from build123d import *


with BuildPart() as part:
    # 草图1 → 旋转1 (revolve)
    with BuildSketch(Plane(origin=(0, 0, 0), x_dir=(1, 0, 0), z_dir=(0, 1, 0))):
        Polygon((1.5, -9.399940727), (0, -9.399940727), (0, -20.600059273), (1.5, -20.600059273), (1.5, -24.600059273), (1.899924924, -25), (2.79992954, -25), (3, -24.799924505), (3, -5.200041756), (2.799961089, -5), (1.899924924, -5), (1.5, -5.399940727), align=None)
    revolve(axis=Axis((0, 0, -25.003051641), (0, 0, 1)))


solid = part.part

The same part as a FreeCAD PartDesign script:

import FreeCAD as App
import Part
import Sketcher

V = App.Vector

doc = App.newDocument("Part")
params = doc.addObject("Spreadsheet::Sheet", "Params")
for row, (alias, value) in enumerate([
    ("sketch1_height", "4 mm"),
    ("sketch1_width", "1.5 mm"),
    ("revolution_angle", "360 deg"),
], start=1):
    params.set(f"A{row}", alias)
    params.set(f"B{row}", "=" + value)
    params.setAlias(f"B{row}", alias)

body = doc.addObject("PartDesign::Body", "Body")

# Sketch on XZ plane
sketch1 = body.newObject("Sketcher::SketchObject", "Sketch")
sketch1.AttachmentSupport = (doc.getObject("XZ_Plane"), [""])
sketch1.MapMode = "FlatFace"
sketch1.addGeometry(Part.LineSegment(V(1.5, 9.4, 0), V(0, 9.4, 0)), False)
sketch1.addGeometry(Part.LineSegment(V(0, 9.4, 0), V(0, 20.6, 0)), False)
sketch1.addGeometry(Part.LineSegment(V(0, 20.6, 0), V(1.5, 20.6, 0)), False)
sketch1.addGeometry(Part.LineSegment(V(1.5, 20.6, 0), V(1.5, 24.6, 0)), False)
sketch1.addGeometry(Part.LineSegment(V(1.5, 24.6, 0), V(1.9, 25, 0)), False)
sketch1.addGeometry(Part.LineSegment(V(1.9, 25, 0), V(2.8, 25, 0)), False)
sketch1.addGeometry(Part.LineSegment(V(2.8, 25, 0), V(3, 24.8, 0)), False)
sketch1.addGeometry(Part.LineSegment(V(3, 24.8, 0), V(3, 5.2, 0)), False)
sketch1.addGeometry(Part.LineSegment(V(3, 5.2, 0), V(2.8, 5, 0)), False)
sketch1.addGeometry(Part.LineSegment(V(2.8, 5, 0), V(1.9, 5, 0)), False)
sketch1.addGeometry(Part.LineSegment(V(1.9, 5, 0), V(1.5, 5.4, 0)), False)
sketch1.addGeometry(Part.LineSegment(V(1.5, 5.4, 0), V(1.5, 9.4, 0)), False)
sketch1.addConstraint(Sketcher.Constraint("Coincident", 0, 2, 1, 1))
sketch1.addConstraint(Sketcher.Constraint("Coincident", 1, 2, 2, 1))
sketch1.addConstraint(Sketcher.Constraint("Coincident", 2, 2, 3, 1))
sketch1.addConstraint(Sketcher.Constraint("Coincident", 3, 2, 4, 1))
sketch1.addConstraint(Sketcher.Constraint("Coincident", 4, 2, 5, 1))
sketch1.addConstraint(Sketcher.Constraint("Coincident", 5, 2, 6, 1))
sketch1.addConstraint(Sketcher.Constraint("Coincident", 6, 2, 7, 1))
sketch1.addConstraint(Sketcher.Constraint("Coincident", 7, 2, 8, 1))
sketch1.addConstraint(Sketcher.Constraint("Coincident", 8, 2, 9, 1))
sketch1.addConstraint(Sketcher.Constraint("Coincident", 9, 2, 10, 1))
sketch1.addConstraint(Sketcher.Constraint("Coincident", 10, 2, 11, 1))
sketch1.addConstraint(Sketcher.Constraint("Coincident", 11, 2, 0, 1))
sketch1.addConstraint(Sketcher.Constraint("Horizontal", 0))
sketch1.addConstraint(Sketcher.Constraint("Vertical", 1))
sketch1.addConstraint(Sketcher.Constraint("Horizontal", 2))
sketch1.addConstraint(Sketcher.Constraint("Vertical", 3))
sketch1.addConstraint(Sketcher.Constraint("Horizontal", 5))
sketch1.addConstraint(Sketcher.Constraint("Vertical", 7))
sketch1.addConstraint(Sketcher.Constraint("Horizontal", 9))
sketch1.addConstraint(Sketcher.Constraint("Vertical", 11))
sketch1.addConstraint(Sketcher.Constraint("PointOnObject", 0, 2, -2))
sketch1.addConstraint(Sketcher.Constraint("Vertical", 4, 2, 9, 2))
sketch1.addConstraint(Sketcher.Constraint("Vertical", 3, 2, 10, 2))
sketch1.addConstraint(Sketcher.Constraint("Equal", 3, 11))
sketch1.addConstraint(Sketcher.Constraint("Equal", 4, 10))
sketch1.addConstraint(Sketcher.Constraint("DistanceY", 3, 1, 3, 2, 4.0))
sketch1.addConstraint(Sketcher.Constraint("DistanceX", 0, 2, 0, 1, 1.5))
sketch1.addConstraint(Sketcher.Constraint("DistanceY", -1, 1, 4, 2, 25.0))
sketch1.addConstraint(Sketcher.Constraint("DistanceX", -1, 1, 6, 2, 3.0))
sketch1.addConstraint(Sketcher.Constraint("DistanceY", -1, 1, 8, 2, 5.0))
sketch1.addConstraint(Sketcher.Constraint("Distance", 8, 0.2829))
sketch1.addConstraint(Sketcher.Constraint("DistanceY", 1, 1, 1, 2, 11.200119))
sketch1.addConstraint(Sketcher.Constraint("DistanceY", 7, 2, 0, 2, 4.199899))
sketch1.addConstraint(Sketcher.Constraint("Distance", 4, 0.56559))
sketch1.addConstraint(Sketcher.Constraint("DistanceX", 5, 1, 5, 2, 0.900005))
sketch1.addConstraint(Sketcher.Constraint("DistanceY", 7, 2, 7, 1, 19.599883))
sketch1.setExpression("Constraints[25]", "Params.sketch1_height")
sketch1.setExpression("Constraints[26]", "Params.sketch1_width")
revolution = body.newObject("PartDesign::Revolution", "Revolution")
revolution.Profile = sketch1
revolution.ReferenceAxis = (sketch1, ["V_Axis"])
revolution.setExpression("Angle", "Params.revolution_angle")

doc.recompute()
